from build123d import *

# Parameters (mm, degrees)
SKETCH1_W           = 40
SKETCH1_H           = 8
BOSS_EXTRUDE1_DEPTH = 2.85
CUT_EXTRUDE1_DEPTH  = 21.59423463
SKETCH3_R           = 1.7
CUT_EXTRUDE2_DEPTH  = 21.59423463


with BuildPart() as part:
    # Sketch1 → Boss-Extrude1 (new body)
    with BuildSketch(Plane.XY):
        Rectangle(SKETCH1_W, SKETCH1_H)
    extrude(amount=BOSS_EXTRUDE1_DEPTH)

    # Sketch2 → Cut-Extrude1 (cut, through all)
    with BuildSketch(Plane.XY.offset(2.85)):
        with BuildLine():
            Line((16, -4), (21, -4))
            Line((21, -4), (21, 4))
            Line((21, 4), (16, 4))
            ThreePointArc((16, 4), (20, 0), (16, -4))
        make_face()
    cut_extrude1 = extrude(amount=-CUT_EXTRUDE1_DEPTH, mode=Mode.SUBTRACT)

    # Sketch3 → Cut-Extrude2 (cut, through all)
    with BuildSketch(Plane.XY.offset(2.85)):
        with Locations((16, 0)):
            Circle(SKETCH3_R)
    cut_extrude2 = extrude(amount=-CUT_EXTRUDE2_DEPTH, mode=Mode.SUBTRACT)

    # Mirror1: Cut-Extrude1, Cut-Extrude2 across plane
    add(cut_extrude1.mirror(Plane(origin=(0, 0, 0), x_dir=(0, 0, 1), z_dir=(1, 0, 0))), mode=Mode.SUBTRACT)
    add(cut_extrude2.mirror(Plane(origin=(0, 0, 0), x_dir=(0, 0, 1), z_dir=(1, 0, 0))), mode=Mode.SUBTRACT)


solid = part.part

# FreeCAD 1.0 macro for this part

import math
import FreeCAD as App
import Part
import Sketcher
from FreeCAD import Vector
Q = App.Units.Quantity

doc = App.newDocument("Part")
body = doc.addObject("PartDesign::Body", "Body")

sketch1 = body.newObject("Sketcher::SketchObject", "Sketch")
sketch1.AttachmentSupport = (doc.getObject("XY_Plane"), [""])
sketch1.MapMode = "FlatFace"
sketch1.addGeometry([
    Part.LineSegment(Vector(-20, 4, 0), Vector(-20, -4, 0)),
    Part.LineSegment(Vector(-20, -4, 0), Vector(20, -4, 0)),
    Part.LineSegment(Vector(20, -4, 0), Vector(20, 4, 0)),
    Part.LineSegment(Vector(20, 4, 0), Vector(-20, 4, 0)),
], False)
sketch1.addConstraint([
    Sketcher.Constraint("Coincident", 0, 2, 1, 1),
    Sketcher.Constraint("Coincident", 1, 2, 2, 1),
    Sketcher.Constraint("Coincident", 2, 2, 3, 1),
    Sketcher.Constraint("Coincident", 3, 2, 0, 1),
    Sketcher.Constraint("Vertical", 0),
    Sketcher.Constraint("Horizontal", 1),
    Sketcher.Constraint("Vertical", 2),
    Sketcher.Constraint("Horizontal", 3),
    Sketcher.Constraint("Symmetric", 0, 2, 2, 2, -1, 1),
    Sketcher.Constraint("DistanceX", 1, 1, 1, 2, Q("40 mm")),
    Sketcher.Constraint("DistanceY", 0, 2, 0, 1, Q("8 mm")),
])
pad1 = body.newObject("PartDesign::Pad", "Pad")
pad1.Profile = sketch1
pad1.Length = 2.85

sketch2 = body.newObject("Sketcher::SketchObject", "Sketch001")
sketch2.AttachmentSupport = (doc.getObject("XY_Plane"), [""])
sketch2.MapMode = "FlatFace"
sketch2.AttachmentOffset = App.Placement(Vector(0, 0, 2.85), App.Rotation())
sketch2.addGeometry([
    Part.LineSegment(Vector(16, -4, 0), Vector(21, -4, 0)),
    Part.LineSegment(Vector(21, -4, 0), Vector(21, 4, 0)),
    Part.LineSegment(Vector(21, 4, 0), Vector(16, 4, 0)),
    Part.ArcOfCircle(Part.Circle(Vector(16, 0, 0), Vector(0, 0, 1), 4), math.radians(-90), math.radians(90)),
], False)
sketch2.addConstraint([
    Sketcher.Constraint("Coincident", 0, 2, 1, 1),
    Sketcher.Constraint("Coincident", 1, 2, 2, 1),
    Sketcher.Constraint("Tangent", 2, 2, 3, 2),
    Sketcher.Constraint("Tangent", 3, 1, 0, 1),
    Sketcher.Constraint("Horizontal", 0),
    Sketcher.Constraint("Vertical", 1),
    Sketcher.Constraint("Horizontal", 2),
    Sketcher.Constraint("PointOnObject", 3, 3, -1),
    Sketcher.Constraint("Radius", 3, Q("4 mm")),
    Sketcher.Constraint("DistanceX", 0, 1, 0, 2, Q("5 mm")),
    Sketcher.Constraint("DistanceX", -1, 1, 3, 3, Q("16 mm")),
])
pocket1 = body.newObject("PartDesign::Pocket", "Pocket")
pocket1.Profile = sketch2
pocket1.Type = "ThroughAll"

sketch3 = body.newObject("Sketcher::SketchObject", "Sketch002")
sketch3.AttachmentSupport = (doc.getObject("XY_Plane"), [""])
sketch3.MapMode = "FlatFace"
sketch3.AttachmentOffset = App.Placement(Vector(0, 0, 2.85), App.Rotation())
sketch3.addGeometry(Part.Circle(Vector(16, 0, 0), Vector(0, 0, 1), 1.7), False)
sketch3.addConstraint([
    Sketcher.Constraint("PointOnObject", 0, 3, -1),
    Sketcher.Constraint("Diameter", 0, Q("3.4 mm")),
    Sketcher.Constraint("DistanceX", -1, 1, 0, 3, Q("16 mm")),
])
pocket2 = body.newObject("PartDesign::Pocket", "Pocket001")
pocket2.Profile = sketch3
pocket2.Type = "ThroughAll"
doc.recompute()

mirrored = body.newObject("PartDesign::Mirrored", "Mirrored")
mirrored.Originals = [pocket1, pocket2]
mirrored.MirrorPlane = (doc.getObject("YZ_Plane"), [""])
body.Tip = mirrored

doc.recompute()
